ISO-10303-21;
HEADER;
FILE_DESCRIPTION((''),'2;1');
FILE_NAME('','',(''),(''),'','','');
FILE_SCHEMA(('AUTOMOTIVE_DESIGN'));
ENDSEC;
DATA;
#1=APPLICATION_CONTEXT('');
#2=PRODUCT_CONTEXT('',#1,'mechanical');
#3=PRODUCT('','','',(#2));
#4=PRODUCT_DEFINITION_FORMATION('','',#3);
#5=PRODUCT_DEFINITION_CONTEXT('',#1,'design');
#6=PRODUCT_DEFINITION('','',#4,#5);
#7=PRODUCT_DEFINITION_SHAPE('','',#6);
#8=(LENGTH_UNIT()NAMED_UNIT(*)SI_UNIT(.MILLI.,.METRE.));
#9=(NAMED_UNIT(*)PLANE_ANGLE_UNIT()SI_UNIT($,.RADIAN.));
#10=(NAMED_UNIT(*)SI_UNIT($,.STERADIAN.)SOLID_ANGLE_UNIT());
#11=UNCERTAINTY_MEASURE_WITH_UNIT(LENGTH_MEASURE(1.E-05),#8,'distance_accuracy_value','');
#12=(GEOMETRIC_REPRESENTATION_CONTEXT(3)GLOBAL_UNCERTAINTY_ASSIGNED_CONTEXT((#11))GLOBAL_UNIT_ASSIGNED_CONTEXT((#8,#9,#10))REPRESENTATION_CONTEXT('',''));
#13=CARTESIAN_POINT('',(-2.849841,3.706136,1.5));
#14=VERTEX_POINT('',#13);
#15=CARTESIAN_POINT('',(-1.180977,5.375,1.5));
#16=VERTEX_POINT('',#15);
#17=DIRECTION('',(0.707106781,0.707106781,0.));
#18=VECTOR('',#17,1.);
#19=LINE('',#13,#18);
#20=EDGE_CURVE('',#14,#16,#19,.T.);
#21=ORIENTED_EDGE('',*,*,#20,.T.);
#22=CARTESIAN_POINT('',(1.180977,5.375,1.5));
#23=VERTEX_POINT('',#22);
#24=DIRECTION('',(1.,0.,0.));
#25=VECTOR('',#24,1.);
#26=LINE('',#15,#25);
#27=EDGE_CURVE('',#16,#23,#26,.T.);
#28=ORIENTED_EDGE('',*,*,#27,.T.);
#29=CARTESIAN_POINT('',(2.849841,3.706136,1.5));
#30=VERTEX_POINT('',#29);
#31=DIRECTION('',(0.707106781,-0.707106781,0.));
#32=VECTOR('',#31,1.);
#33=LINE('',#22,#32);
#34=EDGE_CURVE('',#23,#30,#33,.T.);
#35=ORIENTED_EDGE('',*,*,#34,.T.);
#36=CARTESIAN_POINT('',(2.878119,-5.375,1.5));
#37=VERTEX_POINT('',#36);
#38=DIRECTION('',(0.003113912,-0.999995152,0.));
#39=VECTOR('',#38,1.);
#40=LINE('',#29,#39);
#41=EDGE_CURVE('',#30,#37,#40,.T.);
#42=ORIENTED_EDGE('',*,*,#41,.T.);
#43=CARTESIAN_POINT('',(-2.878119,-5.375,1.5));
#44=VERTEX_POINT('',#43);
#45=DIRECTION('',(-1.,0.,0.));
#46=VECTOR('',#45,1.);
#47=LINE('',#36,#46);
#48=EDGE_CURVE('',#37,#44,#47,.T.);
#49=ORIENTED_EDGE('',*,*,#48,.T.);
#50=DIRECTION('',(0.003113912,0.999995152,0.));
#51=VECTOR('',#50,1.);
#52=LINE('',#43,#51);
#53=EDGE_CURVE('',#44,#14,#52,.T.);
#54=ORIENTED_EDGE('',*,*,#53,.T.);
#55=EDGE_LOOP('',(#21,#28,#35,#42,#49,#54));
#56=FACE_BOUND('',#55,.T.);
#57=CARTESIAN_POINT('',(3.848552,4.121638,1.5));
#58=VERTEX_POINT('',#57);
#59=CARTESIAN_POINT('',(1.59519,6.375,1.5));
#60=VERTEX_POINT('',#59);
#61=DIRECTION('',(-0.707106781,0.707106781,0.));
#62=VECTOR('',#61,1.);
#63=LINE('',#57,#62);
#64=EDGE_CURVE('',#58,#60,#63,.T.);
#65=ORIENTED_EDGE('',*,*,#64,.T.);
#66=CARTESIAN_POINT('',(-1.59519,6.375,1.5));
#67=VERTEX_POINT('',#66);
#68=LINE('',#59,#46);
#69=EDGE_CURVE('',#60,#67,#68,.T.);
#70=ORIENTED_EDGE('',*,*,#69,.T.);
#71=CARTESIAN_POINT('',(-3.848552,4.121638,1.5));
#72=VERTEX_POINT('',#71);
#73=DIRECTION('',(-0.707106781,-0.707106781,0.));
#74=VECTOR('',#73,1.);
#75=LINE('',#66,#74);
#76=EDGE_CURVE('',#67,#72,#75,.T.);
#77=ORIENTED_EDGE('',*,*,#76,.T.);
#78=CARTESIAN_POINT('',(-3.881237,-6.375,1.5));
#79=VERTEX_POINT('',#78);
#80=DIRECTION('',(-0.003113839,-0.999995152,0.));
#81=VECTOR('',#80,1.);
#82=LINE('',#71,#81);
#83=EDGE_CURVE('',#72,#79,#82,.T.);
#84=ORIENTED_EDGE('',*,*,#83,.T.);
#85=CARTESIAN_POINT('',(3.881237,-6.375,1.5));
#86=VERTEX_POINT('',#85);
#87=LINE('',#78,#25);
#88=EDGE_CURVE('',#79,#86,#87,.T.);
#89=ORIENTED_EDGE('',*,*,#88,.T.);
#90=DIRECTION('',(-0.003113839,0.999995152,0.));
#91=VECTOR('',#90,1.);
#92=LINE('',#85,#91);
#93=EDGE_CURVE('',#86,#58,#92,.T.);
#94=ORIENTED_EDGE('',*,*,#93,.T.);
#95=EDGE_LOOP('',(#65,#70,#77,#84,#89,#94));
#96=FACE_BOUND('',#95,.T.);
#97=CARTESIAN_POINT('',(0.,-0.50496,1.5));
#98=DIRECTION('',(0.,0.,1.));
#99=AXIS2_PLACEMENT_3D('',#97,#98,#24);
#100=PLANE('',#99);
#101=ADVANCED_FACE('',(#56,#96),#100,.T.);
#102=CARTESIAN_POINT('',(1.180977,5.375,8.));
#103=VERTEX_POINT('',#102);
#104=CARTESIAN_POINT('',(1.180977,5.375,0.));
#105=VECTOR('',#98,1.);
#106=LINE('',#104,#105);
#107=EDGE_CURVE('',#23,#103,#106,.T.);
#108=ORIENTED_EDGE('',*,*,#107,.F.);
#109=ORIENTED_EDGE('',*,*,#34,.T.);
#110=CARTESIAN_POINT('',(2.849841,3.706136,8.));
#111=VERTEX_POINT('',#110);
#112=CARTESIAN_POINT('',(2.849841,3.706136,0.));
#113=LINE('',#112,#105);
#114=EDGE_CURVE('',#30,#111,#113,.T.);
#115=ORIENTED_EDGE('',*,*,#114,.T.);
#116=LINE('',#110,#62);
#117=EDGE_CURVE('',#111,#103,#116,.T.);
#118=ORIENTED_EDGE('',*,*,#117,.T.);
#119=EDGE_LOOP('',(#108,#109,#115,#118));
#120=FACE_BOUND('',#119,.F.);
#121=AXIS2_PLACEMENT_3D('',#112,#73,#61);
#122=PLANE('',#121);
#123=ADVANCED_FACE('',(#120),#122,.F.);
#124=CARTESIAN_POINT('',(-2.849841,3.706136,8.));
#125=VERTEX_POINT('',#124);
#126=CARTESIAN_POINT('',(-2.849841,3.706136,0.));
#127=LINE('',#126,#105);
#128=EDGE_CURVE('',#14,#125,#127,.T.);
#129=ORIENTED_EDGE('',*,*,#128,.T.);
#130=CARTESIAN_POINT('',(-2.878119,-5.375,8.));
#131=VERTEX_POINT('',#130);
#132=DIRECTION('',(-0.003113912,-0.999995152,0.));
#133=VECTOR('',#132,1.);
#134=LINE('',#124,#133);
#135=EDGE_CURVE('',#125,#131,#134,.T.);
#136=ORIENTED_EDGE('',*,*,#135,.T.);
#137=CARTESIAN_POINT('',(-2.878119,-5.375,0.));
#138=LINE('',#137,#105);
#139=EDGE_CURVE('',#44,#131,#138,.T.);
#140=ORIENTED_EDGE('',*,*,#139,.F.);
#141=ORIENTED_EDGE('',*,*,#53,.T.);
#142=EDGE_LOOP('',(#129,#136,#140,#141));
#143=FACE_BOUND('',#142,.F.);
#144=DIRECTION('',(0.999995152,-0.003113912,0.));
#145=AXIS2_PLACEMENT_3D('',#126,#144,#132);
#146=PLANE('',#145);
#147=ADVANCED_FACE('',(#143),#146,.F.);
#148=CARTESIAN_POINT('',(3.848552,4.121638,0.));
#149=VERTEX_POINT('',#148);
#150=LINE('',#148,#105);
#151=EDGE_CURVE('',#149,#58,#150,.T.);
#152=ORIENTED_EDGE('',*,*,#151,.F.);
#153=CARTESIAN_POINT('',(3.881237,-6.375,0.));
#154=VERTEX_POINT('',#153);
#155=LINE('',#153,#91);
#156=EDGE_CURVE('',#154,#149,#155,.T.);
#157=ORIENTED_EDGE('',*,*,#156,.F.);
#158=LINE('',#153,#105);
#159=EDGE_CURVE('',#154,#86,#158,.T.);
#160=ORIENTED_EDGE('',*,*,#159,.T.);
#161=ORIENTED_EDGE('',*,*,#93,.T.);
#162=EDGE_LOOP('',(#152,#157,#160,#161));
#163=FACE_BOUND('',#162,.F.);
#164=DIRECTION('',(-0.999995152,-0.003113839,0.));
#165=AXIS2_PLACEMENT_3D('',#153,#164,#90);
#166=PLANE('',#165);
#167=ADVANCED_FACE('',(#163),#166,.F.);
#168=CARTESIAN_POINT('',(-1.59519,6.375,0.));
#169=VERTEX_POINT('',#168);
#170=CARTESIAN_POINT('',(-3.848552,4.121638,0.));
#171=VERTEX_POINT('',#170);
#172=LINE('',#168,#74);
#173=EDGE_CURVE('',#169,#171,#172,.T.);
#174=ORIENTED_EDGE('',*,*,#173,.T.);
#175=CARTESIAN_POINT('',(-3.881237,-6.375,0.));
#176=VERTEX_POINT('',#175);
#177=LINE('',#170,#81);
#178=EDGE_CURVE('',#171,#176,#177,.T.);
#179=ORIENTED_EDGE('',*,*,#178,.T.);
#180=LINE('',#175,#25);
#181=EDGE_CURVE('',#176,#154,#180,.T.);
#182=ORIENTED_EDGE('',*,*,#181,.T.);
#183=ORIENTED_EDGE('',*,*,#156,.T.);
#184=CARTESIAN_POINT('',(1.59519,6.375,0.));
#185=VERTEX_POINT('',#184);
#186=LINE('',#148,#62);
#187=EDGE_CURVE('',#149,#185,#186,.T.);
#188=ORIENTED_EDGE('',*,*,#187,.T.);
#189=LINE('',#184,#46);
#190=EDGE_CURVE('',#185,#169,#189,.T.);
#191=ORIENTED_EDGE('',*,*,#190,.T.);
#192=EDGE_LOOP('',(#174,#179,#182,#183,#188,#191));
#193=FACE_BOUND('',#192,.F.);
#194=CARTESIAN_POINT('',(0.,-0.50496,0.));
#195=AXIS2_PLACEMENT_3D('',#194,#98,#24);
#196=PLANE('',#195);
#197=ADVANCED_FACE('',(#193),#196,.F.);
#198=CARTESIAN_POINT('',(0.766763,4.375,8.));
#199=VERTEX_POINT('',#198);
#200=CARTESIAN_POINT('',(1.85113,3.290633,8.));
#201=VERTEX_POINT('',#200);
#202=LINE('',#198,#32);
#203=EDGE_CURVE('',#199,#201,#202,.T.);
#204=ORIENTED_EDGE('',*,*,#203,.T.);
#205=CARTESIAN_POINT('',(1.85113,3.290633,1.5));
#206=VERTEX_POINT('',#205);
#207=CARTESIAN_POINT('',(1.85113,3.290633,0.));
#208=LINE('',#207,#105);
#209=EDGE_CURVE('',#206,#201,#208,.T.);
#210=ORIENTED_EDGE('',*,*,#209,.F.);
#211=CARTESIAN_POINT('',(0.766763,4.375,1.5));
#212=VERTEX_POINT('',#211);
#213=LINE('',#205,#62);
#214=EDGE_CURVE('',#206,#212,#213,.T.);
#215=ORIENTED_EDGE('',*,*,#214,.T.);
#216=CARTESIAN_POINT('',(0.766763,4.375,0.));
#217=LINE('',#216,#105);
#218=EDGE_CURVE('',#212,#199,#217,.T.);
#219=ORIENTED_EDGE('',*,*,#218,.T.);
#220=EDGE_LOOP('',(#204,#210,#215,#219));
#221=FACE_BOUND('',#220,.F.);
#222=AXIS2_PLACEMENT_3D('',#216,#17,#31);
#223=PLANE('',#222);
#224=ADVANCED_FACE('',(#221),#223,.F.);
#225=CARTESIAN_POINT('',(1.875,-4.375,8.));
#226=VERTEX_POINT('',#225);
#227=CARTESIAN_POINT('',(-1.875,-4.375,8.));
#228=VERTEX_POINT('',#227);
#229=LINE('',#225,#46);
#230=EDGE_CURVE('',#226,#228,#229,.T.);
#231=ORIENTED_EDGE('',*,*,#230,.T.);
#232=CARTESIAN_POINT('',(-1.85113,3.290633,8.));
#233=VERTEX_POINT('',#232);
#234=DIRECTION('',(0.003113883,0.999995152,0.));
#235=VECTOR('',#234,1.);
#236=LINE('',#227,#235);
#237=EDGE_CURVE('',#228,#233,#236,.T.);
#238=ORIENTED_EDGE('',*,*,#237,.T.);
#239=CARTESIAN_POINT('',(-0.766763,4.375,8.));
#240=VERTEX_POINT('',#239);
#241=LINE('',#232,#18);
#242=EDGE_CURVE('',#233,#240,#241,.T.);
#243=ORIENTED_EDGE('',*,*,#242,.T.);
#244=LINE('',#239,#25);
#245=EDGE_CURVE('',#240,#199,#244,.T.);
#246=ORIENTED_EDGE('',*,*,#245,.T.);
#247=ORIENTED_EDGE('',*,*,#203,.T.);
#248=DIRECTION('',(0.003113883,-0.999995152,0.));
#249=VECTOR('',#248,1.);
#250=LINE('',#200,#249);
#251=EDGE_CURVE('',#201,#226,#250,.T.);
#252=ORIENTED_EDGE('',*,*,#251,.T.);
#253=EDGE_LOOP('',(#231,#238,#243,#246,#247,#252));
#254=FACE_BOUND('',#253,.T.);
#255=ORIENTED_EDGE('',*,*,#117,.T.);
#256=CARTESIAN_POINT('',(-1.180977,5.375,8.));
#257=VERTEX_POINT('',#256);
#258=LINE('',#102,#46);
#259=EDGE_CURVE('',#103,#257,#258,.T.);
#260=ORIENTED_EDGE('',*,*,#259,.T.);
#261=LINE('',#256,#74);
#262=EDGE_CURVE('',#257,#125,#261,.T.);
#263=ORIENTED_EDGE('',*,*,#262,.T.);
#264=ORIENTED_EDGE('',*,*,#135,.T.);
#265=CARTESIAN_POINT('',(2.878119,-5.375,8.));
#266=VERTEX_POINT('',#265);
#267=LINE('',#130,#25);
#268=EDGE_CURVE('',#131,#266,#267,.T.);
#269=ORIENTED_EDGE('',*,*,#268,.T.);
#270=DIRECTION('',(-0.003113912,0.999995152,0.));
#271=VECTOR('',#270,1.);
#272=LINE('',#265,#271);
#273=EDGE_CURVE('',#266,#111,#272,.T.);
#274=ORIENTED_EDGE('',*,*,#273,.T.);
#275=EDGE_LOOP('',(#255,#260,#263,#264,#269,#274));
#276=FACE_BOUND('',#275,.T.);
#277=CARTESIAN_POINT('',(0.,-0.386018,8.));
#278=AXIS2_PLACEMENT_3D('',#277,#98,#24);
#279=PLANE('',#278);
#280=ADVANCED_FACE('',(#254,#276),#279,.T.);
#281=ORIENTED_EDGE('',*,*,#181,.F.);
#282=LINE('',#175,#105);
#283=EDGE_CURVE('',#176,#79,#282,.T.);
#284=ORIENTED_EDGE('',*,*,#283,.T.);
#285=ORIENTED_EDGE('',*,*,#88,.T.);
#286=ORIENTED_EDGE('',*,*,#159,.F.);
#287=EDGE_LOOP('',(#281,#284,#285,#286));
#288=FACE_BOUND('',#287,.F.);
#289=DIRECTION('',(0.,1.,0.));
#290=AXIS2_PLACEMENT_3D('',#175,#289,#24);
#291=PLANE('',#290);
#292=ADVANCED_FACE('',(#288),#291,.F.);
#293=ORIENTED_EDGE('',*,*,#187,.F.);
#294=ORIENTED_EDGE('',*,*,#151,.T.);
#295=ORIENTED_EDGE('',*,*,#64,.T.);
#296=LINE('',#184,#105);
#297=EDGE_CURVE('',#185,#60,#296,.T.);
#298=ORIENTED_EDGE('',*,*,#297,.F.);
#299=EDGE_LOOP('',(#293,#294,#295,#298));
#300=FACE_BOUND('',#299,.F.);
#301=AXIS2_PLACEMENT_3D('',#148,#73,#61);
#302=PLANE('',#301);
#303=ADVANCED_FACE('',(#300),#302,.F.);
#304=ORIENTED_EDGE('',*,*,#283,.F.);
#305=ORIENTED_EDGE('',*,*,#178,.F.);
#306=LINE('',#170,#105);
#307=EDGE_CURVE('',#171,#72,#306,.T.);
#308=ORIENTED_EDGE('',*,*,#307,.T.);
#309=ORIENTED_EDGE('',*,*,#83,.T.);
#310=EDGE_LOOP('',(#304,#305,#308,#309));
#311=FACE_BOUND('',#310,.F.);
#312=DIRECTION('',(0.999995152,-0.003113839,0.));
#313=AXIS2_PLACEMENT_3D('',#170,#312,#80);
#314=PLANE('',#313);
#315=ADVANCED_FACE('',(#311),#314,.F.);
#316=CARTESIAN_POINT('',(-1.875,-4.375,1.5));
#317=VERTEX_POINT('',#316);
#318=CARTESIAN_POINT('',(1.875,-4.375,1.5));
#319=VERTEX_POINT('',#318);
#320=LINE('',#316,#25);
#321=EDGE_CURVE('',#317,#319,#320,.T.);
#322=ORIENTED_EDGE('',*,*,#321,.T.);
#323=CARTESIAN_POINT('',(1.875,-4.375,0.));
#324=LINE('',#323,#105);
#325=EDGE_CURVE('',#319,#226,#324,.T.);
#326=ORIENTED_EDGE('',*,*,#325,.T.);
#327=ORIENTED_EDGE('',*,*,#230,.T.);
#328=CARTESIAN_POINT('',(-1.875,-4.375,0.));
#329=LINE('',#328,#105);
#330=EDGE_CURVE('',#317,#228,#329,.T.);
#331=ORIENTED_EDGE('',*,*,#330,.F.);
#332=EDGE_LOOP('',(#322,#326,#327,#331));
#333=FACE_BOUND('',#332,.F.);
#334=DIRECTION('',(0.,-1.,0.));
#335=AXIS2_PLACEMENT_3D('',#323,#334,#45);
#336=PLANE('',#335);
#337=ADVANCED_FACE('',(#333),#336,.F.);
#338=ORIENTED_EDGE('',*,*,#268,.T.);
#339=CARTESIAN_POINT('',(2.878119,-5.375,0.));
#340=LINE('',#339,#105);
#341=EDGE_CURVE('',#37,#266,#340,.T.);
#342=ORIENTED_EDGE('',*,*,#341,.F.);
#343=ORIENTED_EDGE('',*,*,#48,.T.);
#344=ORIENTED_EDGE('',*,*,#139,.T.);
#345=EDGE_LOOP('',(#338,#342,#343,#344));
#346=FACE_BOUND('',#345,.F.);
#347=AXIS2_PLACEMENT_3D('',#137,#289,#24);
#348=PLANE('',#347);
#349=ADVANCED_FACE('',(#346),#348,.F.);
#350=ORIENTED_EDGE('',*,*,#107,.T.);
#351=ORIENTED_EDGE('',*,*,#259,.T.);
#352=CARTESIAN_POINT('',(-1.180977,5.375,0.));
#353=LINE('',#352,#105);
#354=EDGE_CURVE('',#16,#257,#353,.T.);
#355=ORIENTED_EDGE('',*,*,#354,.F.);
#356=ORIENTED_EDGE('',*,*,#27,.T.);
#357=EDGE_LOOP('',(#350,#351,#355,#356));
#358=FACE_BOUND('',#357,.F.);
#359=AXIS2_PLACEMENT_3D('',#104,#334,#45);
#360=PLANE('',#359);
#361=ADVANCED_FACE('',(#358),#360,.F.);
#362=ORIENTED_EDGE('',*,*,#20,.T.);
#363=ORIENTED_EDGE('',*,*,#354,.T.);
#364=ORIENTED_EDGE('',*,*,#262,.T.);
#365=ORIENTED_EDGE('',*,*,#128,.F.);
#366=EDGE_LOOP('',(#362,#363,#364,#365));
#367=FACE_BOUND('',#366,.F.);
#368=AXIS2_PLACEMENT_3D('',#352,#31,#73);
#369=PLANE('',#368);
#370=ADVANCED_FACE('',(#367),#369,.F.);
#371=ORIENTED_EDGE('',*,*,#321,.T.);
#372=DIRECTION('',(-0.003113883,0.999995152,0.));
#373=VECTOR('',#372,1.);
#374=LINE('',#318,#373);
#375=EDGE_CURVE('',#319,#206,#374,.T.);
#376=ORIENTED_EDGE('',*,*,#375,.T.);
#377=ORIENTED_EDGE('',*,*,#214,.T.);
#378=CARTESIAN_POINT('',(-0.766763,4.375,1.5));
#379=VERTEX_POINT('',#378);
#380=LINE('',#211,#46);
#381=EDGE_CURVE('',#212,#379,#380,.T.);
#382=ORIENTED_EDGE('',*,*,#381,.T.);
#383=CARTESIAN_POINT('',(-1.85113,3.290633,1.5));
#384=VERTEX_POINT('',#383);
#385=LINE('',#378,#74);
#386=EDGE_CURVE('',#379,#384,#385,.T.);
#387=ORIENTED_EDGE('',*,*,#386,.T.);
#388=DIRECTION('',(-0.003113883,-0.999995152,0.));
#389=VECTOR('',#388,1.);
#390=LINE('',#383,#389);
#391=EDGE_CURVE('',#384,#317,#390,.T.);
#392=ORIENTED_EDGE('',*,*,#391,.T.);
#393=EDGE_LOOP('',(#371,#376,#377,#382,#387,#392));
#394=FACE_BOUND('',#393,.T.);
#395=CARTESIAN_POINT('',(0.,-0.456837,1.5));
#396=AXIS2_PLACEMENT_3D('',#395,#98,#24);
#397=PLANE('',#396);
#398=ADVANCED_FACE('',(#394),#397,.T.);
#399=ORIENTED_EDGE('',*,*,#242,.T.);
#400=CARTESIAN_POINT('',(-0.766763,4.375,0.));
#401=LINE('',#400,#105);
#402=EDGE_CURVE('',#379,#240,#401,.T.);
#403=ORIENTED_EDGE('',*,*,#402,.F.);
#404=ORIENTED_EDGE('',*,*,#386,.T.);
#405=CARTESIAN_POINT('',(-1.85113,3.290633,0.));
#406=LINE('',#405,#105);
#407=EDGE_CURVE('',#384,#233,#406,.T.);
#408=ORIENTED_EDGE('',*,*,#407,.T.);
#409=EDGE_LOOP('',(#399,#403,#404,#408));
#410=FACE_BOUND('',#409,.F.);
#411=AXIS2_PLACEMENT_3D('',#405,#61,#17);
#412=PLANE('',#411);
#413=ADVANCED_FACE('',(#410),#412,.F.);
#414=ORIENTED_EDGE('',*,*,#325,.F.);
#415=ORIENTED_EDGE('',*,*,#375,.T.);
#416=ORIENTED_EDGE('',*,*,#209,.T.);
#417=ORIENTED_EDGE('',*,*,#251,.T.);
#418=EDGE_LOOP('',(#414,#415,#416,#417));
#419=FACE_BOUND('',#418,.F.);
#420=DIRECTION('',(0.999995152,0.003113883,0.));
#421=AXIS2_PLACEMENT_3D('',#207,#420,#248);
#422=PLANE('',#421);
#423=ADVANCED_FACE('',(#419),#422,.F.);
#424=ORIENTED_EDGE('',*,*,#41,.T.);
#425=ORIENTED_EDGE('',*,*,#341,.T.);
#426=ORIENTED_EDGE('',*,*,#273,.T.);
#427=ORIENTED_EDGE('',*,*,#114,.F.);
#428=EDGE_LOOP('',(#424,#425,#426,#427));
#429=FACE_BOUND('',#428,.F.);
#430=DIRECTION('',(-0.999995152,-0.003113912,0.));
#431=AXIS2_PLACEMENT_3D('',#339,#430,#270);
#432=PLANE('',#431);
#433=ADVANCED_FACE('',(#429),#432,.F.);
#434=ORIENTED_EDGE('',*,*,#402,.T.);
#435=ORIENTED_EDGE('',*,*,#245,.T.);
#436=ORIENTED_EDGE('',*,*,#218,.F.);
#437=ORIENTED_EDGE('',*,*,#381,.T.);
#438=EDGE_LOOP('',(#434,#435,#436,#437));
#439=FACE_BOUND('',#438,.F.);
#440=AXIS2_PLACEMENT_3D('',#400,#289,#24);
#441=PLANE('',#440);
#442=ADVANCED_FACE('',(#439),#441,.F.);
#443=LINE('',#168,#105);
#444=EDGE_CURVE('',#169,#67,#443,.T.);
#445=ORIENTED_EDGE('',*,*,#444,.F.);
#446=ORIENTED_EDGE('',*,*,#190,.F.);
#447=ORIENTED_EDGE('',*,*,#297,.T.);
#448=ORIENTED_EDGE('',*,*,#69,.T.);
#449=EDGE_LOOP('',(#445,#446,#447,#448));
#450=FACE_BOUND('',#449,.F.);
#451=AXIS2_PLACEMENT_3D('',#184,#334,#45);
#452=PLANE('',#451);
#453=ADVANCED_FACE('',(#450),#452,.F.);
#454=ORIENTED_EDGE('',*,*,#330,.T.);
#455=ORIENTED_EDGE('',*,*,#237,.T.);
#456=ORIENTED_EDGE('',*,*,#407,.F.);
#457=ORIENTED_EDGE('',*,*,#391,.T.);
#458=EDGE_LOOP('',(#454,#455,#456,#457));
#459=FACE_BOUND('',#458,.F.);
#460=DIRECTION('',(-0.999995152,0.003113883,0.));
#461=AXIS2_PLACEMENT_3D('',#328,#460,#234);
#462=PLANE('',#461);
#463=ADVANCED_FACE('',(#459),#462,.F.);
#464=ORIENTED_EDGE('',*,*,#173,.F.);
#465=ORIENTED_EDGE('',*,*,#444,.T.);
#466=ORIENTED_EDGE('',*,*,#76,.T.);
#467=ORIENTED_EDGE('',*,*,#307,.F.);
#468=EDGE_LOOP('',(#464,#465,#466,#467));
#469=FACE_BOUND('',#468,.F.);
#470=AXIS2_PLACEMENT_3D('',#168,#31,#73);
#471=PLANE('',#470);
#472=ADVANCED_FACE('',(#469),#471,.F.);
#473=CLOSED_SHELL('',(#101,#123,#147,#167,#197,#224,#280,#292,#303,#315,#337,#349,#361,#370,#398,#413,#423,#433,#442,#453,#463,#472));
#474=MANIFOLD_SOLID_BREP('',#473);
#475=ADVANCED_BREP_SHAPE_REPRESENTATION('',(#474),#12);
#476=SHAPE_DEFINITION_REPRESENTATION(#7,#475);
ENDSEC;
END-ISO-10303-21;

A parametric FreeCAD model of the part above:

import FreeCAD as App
import Part
import Sketcher

V = App.Vector


def add_polygon(sketch, points):
    """Adds a closed chain of lines whose ends are joined by coincident constraints."""
    first, n = sketch.GeometryCount, len(points)
    for a, b in zip(points, points[1:] + points[:1]):
        sketch.addGeometry(Part.LineSegment(App.Vector(*a, 0), App.Vector(*b, 0)), False)
    for i in range(n):
        sketch.addConstraint(Sketcher.Constraint("Coincident", first + i, 2, first + (i + 1) % n, 1))

doc = App.newDocument("Part")
body = doc.addObject("PartDesign::Body", "Body")

sketch1 = body.newObject("Sketcher::SketchObject", "Sketch")
sketch1.AttachmentSupport = (doc.getObject("XY_Plane"), [""])
sketch1.MapMode = "FlatFace"
add_polygon(sketch1, [(-1.2, 5.4), (-2.8, 3.7), (-2.9, -5.4), (2.9, -5.4), (2.8, 3.7), (1.2, 5.4)])
add_polygon(sketch1, [(0.8, 4.4), (1.9, 3.3), (1.9, -4.4), (-1.9, -4.4), (-1.9, 3.3), (-0.8, 4.4)])
sketch1.addConstraint([
    Sketcher.Constraint("Horizontal", 2),
    Sketcher.Constraint("Horizontal", 5),
    Sketcher.Constraint("Horizontal", 8),
    Sketcher.Constraint("Horizontal", 11),
    Sketcher.Constraint("Symmetric", 0, 2, 3, 2, -2),
    Sketcher.Constraint("Symmetric", 6, 2, 9, 2, -2),
    Sketcher.Constraint("Perpendicular", 0, 4),
    Sketcher.Constraint("Parallel", 4, 6),
    Sketcher.Constraint("Parallel", 3, 7),
    Sketcher.Constraint("Parallel", 1, 9),
    Sketcher.Constraint("Perpendicular", 6, 10),
    Sketcher.Constraint("Equal", 0, 4),
    Sketcher.Constraint("DistanceY", 2, 2, 7, 2, 1.0),
    Sketcher.Constraint("DistanceY", 10, 2, 5, 2, 1.0),
    Sketcher.Constraint("DistanceX", 8, 2, 8, 1, 3.75),
    Sketcher.Constraint("DistanceY", 2, 2, 4, 2, 10.75),
    Sketcher.Constraint("DistanceY", 1, 2, -1, 1, 5.375),
    Sketcher.Constraint("DistanceX", -1, 1, 7, 2, 1.875),
    Sketcher.Constraint("Distance", 0, 2.36013),
    Sketcher.Constraint("Distance", 7, 7.66567),
    Sketcher.Constraint("DistanceX", 2, 1, 2, 2, 5.756238),
    Sketcher.Constraint("DistanceX", 5, 2, 5, 1, 2.361954),
])
pad1 = body.newObject("PartDesign::Pad", "Pad")
pad1.Profile = sketch1
pad1.Length = 8

sketch2 = body.newObject("Sketcher::SketchObject", "Sketch001")
sketch2.AttachmentSupport = (doc.getObject("XY_Plane"), [""])
sketch2.MapMode = "FlatFace"
add_polygon(sketch2, [(-1.6, 6.4), (-3.8, 4.1), (-3.9, -6.4), (3.9, -6.4), (3.8, 4.1), (1.6, 6.4)])
add_polygon(sketch2, [(2.9, -5.4), (-2.9, -5.4), (-2.8, 3.7), (-1.2, 5.4), (1.2, 5.4), (2.8, 3.7)])
add_polygon(sketch2, [(-1.9, -4.4), (1.9, -4.4), (1.9, 3.3), (0.8, 4.4), (-0.8, 4.4), (-1.9, 3.3)])
sketch2.addConstraint([
    Sketcher.Constraint("Horizontal", 2),
    Sketcher.Constraint("Horizontal", 5),
    Sketcher.Constraint("Horizontal", 6),
    Sketcher.Constraint("Horizontal", 9),
    Sketcher.Constraint("Horizontal", 12),
    Sketcher.Constraint("Horizontal", 15),
    Sketcher.Constraint("Symmetric", 0, 2, 3, 2, -2),
    Sketcher.Constraint("Symmetric", 7, 2, 10, 2, -2),
    Sketcher.Constraint("Symmetric", 13, 2, 16, 2, -2),
    Sketcher.Constraint("Perpendicular", 0, 4),
    Sketcher.Constraint("Parallel", 1, 7),
    Sketcher.Constraint("Perpendicular", 4, 8),
    Sketcher.Constraint("Perpendicular", 8, 10),
    Sketcher.Constraint("Parallel", 3, 11),
    Sketcher.Constraint("Parallel", 11, 13),
    Sketcher.Constraint("Parallel", 10, 14),
    Sketcher.Constraint("Perpendicular", 14, 16),
    Sketcher.Constraint("Parallel", 7, 17),
    Sketcher.Constraint("Equal", 0, 4),
    Sketcher.Constraint("DistanceY", 1, 2, 6, 2, 1.0),
    Sketcher.Constraint("DistanceY", 8, 2, 5, 2, 1.0),
    Sketcher.Constraint("DistanceY", 11, 2, 12, 2, 1.0),
    Sketcher.Constraint("DistanceY", 14, 2, 9, 2, 1.0),
    Sketcher.Constraint("DistanceX", 12, 1, 12, 2, 3.75),
    Sketcher.Constraint("DistanceY", 2, 2, 4, 2, 12.75),
    Sketcher.Constraint("DistanceY", 1, 2, -1, 1, 6.375),
    Sketcher.Constraint("DistanceX", -1, 1, 12, 2, 1.875),
    Sketcher.Constraint("DistanceX", 5, 2, 5, 1, 3.19038),
    Sketcher.Constraint("Distance", 1, 10.496689),
    Sketcher.Constraint("Distance", 7, 9.08118),
    Sketcher.Constraint("Distance", 13, 7.66567),
    Sketcher.Constraint("DistanceX", 2, 1, 2, 2, 7.762474),
    Sketcher.Constraint("DistanceX", 6, 2, 6, 1, 5.756238),
])
pad2 = body.newObject("PartDesign::Pad", "Pad001")
pad2.Profile = sketch2
pad2.Length = 1.5

doc.recompute()
